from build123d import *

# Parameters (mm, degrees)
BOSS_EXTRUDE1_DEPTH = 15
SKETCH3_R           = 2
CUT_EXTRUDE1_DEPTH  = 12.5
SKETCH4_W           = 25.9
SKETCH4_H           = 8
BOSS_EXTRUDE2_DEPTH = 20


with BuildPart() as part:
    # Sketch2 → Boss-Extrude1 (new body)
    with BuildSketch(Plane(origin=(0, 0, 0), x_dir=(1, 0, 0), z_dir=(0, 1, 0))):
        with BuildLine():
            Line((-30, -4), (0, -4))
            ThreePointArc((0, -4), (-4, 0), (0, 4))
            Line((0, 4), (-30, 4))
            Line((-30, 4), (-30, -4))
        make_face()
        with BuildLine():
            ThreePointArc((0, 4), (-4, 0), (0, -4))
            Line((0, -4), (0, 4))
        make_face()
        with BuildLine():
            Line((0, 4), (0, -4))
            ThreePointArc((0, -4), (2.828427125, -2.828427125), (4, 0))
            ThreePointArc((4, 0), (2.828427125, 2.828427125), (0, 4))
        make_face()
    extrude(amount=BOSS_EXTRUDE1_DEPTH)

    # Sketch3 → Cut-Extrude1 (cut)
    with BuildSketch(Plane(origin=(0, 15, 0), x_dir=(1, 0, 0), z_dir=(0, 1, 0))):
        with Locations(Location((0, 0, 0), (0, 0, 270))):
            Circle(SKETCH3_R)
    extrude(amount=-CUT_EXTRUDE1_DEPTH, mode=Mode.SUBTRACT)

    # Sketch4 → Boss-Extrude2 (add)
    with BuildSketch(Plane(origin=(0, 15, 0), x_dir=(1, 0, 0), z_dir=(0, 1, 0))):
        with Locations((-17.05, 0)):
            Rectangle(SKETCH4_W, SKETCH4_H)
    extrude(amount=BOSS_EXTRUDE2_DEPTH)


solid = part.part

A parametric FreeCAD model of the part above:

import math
import FreeCAD as App
import Part
import Sketcher

doc = App.newDocument("Part")
params = doc.addObject("Spreadsheet::Sheet", "Params")
for row, (alias, value) in enumerate([
    ("sketch1_radius", "4 mm"),
    ("sketch1_width", "30 mm"),
    ("pad1_length", "15 mm"),
    ("sketch2_diameter", "4 mm"),
    ("pocket1_length", "12.5 mm"),
    ("sketch3_height", "8 mm"),
    ("sketch3_width", "25.9 mm"),
    ("pad2_length", "20 mm"),
], start=1):
    params.set(f"A{row}", alias)
    params.set(f"B{row}", "=" + value)
    params.setAlias(f"B{row}", alias)

body = doc.addObject("PartDesign::Body", "Body")

# Sketch on XZ plane
sketch1 = body.newObject("Sketcher::SketchObject", "Sketch")
sketch1.AttachmentSupport = (doc.getObject("XZ_Plane"), [""])
sketch1.MapMode = "FlatFace"
sketch1.addGeometry([
    Part.LineSegment(App.Vector(0, -4, 0), App.Vector(-30, -4, 0)),  # 0
    Part.LineSegment(App.Vector(-30, -4, 0), App.Vector(-30, 4, 0)),  # 1
    Part.LineSegment(App.Vector(-30, 4, 0), App.Vector(0, 4, 0)),  # 2
    Part.ArcOfCircle(Part.Circle(App.Vector(0, 0, 0), App.Vector(0, 0, 1), 4), math.radians(0), math.radians(90)),  # 3
    Part.ArcOfCircle(Part.Circle(App.Vector(0, 0, 0), App.Vector(0, 0, 1), 4), math.radians(-90), math.radians(0)),  # 4
], False)
sketch1.addConstraint([
    Sketcher.Constraint("Coincident", 0, 2, 1, 1),
    Sketcher.Constraint("Coincident", 1, 2, 2, 1),
    Sketcher.Constraint("Tangent", 2, 2, 3, 2),
    Sketcher.Constraint("Tangent", 3, 1, 4, 2),
    Sketcher.Constraint("Tangent", 4, 1, 0, 1),
    Sketcher.Constraint("Horizontal", 0),
    Sketcher.Constraint("Vertical", 1),
    Sketcher.Constraint("Horizontal", 2),
    Sketcher.Constraint("Coincident", 3, 3, -1, 1),
    Sketcher.Constraint("Equal", 3, 4),
    Sketcher.Constraint("PointOnObject", 3, 1, -1),
    Sketcher.Constraint("Radius", 3, 4.0),
    Sketcher.Constraint("DistanceX", 0, 2, 0, 1, 30.0),
])
sketch1.setExpression("Constraints[11]", "Params.sketch1_radius")
sketch1.setExpression("Constraints[12]", "Params.sketch1_width")
pad1 = body.newObject("PartDesign::Pad", "Pad")
pad1.Profile = sketch1
pad1.setExpression("Length", "Params.pad1_length")
pad1.Reversed = True

# Sketch on XZ plane
sketch2 = body.newObject("Sketcher::SketchObject", "Sketch001")
sketch2.AttachmentSupport = (doc.getObject("XZ_Plane"), [""])
sketch2.MapMode = "FlatFace"
sketch2.AttachmentOffset = App.Placement(App.Vector(0, 0, -15), App.Rotation())
sketch2.addGeometry(Part.Circle(App.Vector(0, 0, 0), App.Vector(0, 0, 1), 2), False)
sketch2.addConstraint([
    Sketcher.Constraint("Coincident", 0, 3, -1, 1),
    Sketcher.Constraint("Diameter", 0, 4.0),
])
sketch2.setExpression("Constraints[1]", "Params.sketch2_diameter")
pocket1 = body.newObject("PartDesign::Pocket", "Pocket")
pocket1.Profile = sketch2
pocket1.setExpression("Length", "Params.pocket1_length")
pocket1.Reversed = True

# Sketch on XZ plane
sketch3 = body.newObject("Sketcher::SketchObject", "Sketch002")
sketch3.AttachmentSupport = (doc.getObject("XZ_Plane"), [""])
sketch3.MapMode = "FlatFace"
sketch3.AttachmentOffset = App.Placement(App.Vector(0, 0, -15), App.Rotation())
sketch3.addGeometry([
    Part.LineSegment(App.Vector(-30, -4, 0), App.Vector(-30, 4, 0)),
    Part.LineSegment(App.Vector(-30, 4, 0), App.Vector(-4, 4, 0)),
    Part.LineSegment(App.Vector(-4, 4, 0), App.Vector(-4, -4, 0)),
    Part.LineSegment(App.Vector(-4, -4, 0), App.Vector(-30, -4, 0)),
], False)
sketch3.addConstraint([
    Sketcher.Constraint("Coincident", 0, 2, 1, 1),
    Sketcher.Constraint("Coincident", 1, 2, 2, 1),
    Sketcher.Constraint("Coincident", 2, 2, 3, 1),
    Sketcher.Constraint("Coincident", 3, 2, 0, 1),
    Sketcher.Constraint("Vertical", 0),
    Sketcher.Constraint("Horizontal", 1),
    Sketcher.Constraint("Vertical", 2),
    Sketcher.Constraint("Horizontal", 3),
    Sketcher.Constraint("DistanceY", 0, 1, 0, 2, 8.0),
    Sketcher.Constraint("DistanceX", 1, 1, 1, 2, 25.9),
    Sketcher.Constraint("DistanceX", 0, 2, -1, 1, 30.0),
    Sketcher.Constraint("DistanceY", -1, 1, 0, 2, 4.0),
])
sketch3.setExpression("Constraints[8]", "Params.sketch3_height")
sketch3.setExpression("Constraints[9]", "Params.sketch3_width")
pad2 = body.newObject("PartDesign::Pad", "Pad001")
pad2.Profile = sketch3
pad2.setExpression("Length", "Params.pad2_length")
pad2.Reversed = True

doc.recompute()
